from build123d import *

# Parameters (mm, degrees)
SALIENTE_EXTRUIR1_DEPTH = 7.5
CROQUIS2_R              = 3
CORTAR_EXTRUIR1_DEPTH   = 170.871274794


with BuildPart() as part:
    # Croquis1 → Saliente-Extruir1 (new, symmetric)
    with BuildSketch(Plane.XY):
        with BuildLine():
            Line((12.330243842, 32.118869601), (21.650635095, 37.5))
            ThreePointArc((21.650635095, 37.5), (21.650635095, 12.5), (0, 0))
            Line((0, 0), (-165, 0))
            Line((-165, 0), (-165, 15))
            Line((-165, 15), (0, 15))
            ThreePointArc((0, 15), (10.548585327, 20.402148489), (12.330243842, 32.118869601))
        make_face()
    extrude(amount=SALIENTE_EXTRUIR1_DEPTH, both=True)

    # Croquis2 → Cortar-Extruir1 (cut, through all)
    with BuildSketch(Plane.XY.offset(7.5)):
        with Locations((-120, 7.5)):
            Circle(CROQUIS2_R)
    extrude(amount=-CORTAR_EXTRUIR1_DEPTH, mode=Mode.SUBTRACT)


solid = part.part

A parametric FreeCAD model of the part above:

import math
import FreeCAD as App
import Part
import Sketcher
from FreeCAD import Vector
Q = App.Units.Quantity

doc = App.newDocument("Part")
body = doc.addObject("PartDesign::Body", "Body")

# Sketch on XY plane
sketch1 = body.newObject("Sketcher::SketchObject", "Sketch")
sketch1.AttachmentSupport = (doc.getObject("XY_Plane"), [""])
sketch1.MapMode = "FlatFace"
sketch1.addGeometry(Part.LineSegment(Vector(22, 38, 0), Vector(12, 32, 0)), False)
sketch1.addGeometry(Part.ArcOfCircle(Part.Circle(Vector(0, 28, 0), Vector(0, 0, 1), 13), math.radians(-90), math.radians(18)), False)
sketch1.addGeometry(Part.LineSegment(Vector(0, 15, 0), Vector(-165, 15, 0)), False)
sketch1.addGeometry(Part.LineSegment(Vector(-165, 15, 0), Vector(-165, 0, 0)), False)
sketch1.addGeometry(Part.LineSegment(Vector(-165, 0, 0), Vector(0, 0, 0)), False)
sketch1.addGeometry(Part.ArcOfCircle(Part.Circle(Vector(0, 25, 0), Vector(0, 0, 1), 25), math.radians(-90), math.radians(30)), False)
sketch1.addConstraint(Sketcher.Constraint("Coincident", 0, 2, 1, 2))
sketch1.addConstraint(Sketcher.Constraint("Tangent", 1, 1, 2, 1))
sketch1.addConstraint(Sketcher.Constraint("Coincident", 2, 2, 3, 1))
sketch1.addConstraint(Sketcher.Constraint("Coincident", 3, 2, 4, 1))
sketch1.addConstraint(Sketcher.Constraint("Tangent", 4, 2, 5, 1))
sketch1.addConstraint(Sketcher.Constraint("Coincident", 5, 2, 0, 1))
sketch1.addConstraint(Sketcher.Constraint("Horizontal", 2))
sketch1.addConstraint(Sketcher.Constraint("Vertical", 3))
sketch1.addConstraint(Sketcher.Constraint("Horizontal", 4))
sketch1.addConstraint(Sketcher.Constraint("Coincident", 4, 2, -1, 1))
sketch1.addConstraint(Sketcher.Constraint("PointOnObject", 1, 3, -2))
sketch1.addConstraint(Sketcher.Constraint("Radius", 1, Q("13 mm")))
sketch1.addConstraint(Sketcher.Constraint("Radius", 5, Q("25 mm")))
sketch1.addConstraint(Sketcher.Constraint("DistanceX", 2, 2, 2, 1, Q("165 mm")))
sketch1.addConstraint(Sketcher.Constraint("DistanceY", 3, 2, 3, 1, Q("15 mm")))
sketch1.addConstraint(Sketcher.Constraint("Angle", 0, Q("-150 deg")))
sketch1.addConstraint(Sketcher.Constraint("DistanceY", -1, 1, 5, 2, Q("37.5 mm")))
pad1 = body.newObject("PartDesign::Pad", "Pad")
pad1.Profile = sketch1
pad1.Length = 15
pad1.Midplane = True

# Sketch on XY plane
sketch2 = body.newObject("Sketcher::SketchObject", "Sketch001")
sketch2.AttachmentSupport = (doc.getObject("XY_Plane"), [""])
sketch2.MapMode = "FlatFace"
sketch2.AttachmentOffset = App.Placement(Vector(0, 0, 7.5), App.Rotation())
sketch2.addGeometry(Part.Circle(Vector(-120, 7.5, 0), Vector(0, 0, 1), 3), False)
sketch2.addConstraint(Sketcher.Constraint("Diameter", 0, Q("6 mm")))
sketch2.addConstraint(Sketcher.Constraint("DistanceX", 0, 3, -1, 1, Q("120 mm")))
sketch2.addConstraint(Sketcher.Constraint("DistanceY", -1, 1, 0, 3, Q("7.5 mm")))
pocket1 = body.newObject("PartDesign::Pocket", "Pocket")
pocket1.Profile = sketch2
pocket1.Type = "ThroughAll"

doc.recompute()
